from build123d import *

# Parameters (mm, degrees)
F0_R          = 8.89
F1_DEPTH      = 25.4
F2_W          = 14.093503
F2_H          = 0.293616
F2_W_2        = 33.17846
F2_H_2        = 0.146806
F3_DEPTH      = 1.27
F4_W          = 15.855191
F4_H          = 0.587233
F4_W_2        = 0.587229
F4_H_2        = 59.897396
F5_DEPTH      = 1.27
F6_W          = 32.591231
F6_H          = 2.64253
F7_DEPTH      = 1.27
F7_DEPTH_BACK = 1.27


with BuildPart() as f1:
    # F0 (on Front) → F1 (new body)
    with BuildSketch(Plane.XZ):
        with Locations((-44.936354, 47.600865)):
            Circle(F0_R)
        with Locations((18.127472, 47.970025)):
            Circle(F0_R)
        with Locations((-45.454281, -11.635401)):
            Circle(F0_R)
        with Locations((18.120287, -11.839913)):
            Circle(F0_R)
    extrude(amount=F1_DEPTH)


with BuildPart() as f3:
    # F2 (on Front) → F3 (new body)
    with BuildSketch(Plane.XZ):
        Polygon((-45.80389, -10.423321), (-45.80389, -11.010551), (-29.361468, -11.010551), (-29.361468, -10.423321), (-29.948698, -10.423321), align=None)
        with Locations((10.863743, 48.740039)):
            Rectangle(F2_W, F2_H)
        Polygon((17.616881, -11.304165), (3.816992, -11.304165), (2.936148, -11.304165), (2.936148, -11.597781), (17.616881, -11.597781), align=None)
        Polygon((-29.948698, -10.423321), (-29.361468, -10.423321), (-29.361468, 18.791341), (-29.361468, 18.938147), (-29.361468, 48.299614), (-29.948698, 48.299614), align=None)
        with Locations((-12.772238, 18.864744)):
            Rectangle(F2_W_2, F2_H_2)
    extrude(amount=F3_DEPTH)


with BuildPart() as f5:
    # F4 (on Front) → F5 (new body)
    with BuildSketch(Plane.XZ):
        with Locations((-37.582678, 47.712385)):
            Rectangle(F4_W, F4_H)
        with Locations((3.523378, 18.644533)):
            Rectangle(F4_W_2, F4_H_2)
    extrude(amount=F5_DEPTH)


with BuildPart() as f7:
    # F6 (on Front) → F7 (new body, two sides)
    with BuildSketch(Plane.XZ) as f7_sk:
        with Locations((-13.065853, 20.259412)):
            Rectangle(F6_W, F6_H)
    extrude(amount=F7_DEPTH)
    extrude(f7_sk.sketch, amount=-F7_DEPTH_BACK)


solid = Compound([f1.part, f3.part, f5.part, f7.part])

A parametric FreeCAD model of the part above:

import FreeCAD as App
import Part
import Sketcher
from FreeCAD import Vector
Q = App.Units.Quantity

doc = App.newDocument("Part")
body = doc.addObject("PartDesign::Body", "Body")
body.AllowCompound = True

sketch1 = body.newObject("Sketcher::SketchObject", "Sketch")
sketch1.AttachmentSupport = (doc.getObject("XZ_Plane"), [""])
sketch1.MapMode = "FlatFace"
sketch1.addGeometry(Part.Circle(Vector(-45, 48, 0), Vector(0, 0, 1), 9), False)
sketch1.addGeometry(Part.Circle(Vector(18, 48, 0), Vector(0, 0, 1), 9), False)
sketch1.addGeometry(Part.Circle(Vector(-45, -12, 0), Vector(0, 0, 1), 9), False)
sketch1.addGeometry(Part.Circle(Vector(18, -12, 0), Vector(0, 0, 1), 9), False)
sketch1.addConstraint(Sketcher.Constraint("Equal", 0, 1))
sketch1.addConstraint(Sketcher.Constraint("Equal", 1, 2))
sketch1.addConstraint(Sketcher.Constraint("Equal", 2, 3))
sketch1.addConstraint(Sketcher.Constraint("Diameter", 0, Q("0.7 in")))
sketch1.addConstraint(Sketcher.Constraint("DistanceY", 2, 3, -1, 1, Q("11.635401 mm")))
sketch1.addConstraint(Sketcher.Constraint("DistanceX", 2, 3, -1, 1, Q("45.454281 mm")))
sketch1.addConstraint(Sketcher.Constraint("DistanceY", 0, 3, 1, 3, Q("0.36916 mm")))
sketch1.addConstraint(Sketcher.Constraint("DistanceY", 3, 3, 1, 3, Q("59.809938 mm")))
sketch1.addConstraint(Sketcher.Constraint("DistanceY", 3, 3, 2, 3, Q("0.204512 mm")))
sketch1.addConstraint(Sketcher.Constraint("DistanceX", 0, 3, 3, 3, Q("63.056641 mm")))
sketch1.addConstraint(Sketcher.Constraint("DistanceX", 0, 3, -1, 1, Q("44.936354 mm")))
sketch1.addConstraint(Sketcher.Constraint("DistanceX", -1, 1, 1, 3, Q("18.127472 mm")))
pad1 = body.newObject("PartDesign::Pad", "Pad")
pad1.Profile = sketch1
pad1.Length = Q("1 in")
body2 = doc.addObject("PartDesign::Body", "Body001")
body2.AllowCompound = True

sketch2 = body2.newObject("Sketcher::SketchObject", "Sketch001")
sketch2.AttachmentSupport = (doc.getObject("XZ_Plane001"), [""])
sketch2.MapMode = "FlatFace"
sketch2.addGeometry(Part.LineSegment(Vector(-45.8, -10.42, 0), Vector(-45.8, -11.01, 0)), False)
sketch2.addGeometry(Part.LineSegment(Vector(-45.8, -11.01, 0), Vector(-29.36, -11.01, 0)), False)
sketch2.addGeometry(Part.LineSegment(Vector(-29.36, -11.01, 0), Vector(-29.36, 18.79, 0)), False)
sketch2.addGeometry(Part.LineSegment(Vector(-29.36, 18.79, 0), Vector(3.82, 18.79, 0)), False)
sketch2.addGeometry(Part.LineSegment(Vector(3.82, 18.79, 0), Vector(3.82, 18.94, 0)), False)
sketch2.addGeometry(Part.LineSegment(Vector(3.82, 18.94, 0), Vector(-29.36, 18.94, 0)), False)
sketch2.addGeometry(Part.LineSegment(Vector(-29.36, 18.94, 0), Vector(-29.36, 48.3, 0)), False)
sketch2.addGeometry(Part.LineSegment(Vector(-29.36, 48.3, 0), Vector(-29.95, 48.3, 0)), False)
sketch2.addGeometry(Part.LineSegment(Vector(-29.95, 48.3, 0), Vector(-29.95, -10.42, 0)), False)
sketch2.addGeometry(Part.LineSegment(Vector(-29.95, -10.42, 0), Vector(-45.8, -10.42, 0)), False)
sketch2.addGeometry(Part.LineSegment(Vector(3.82, 48.89, 0), Vector(3.82, 48.59, 0)), False)
sketch2.addGeometry(Part.LineSegment(Vector(3.82, 48.59, 0), Vector(17.91, 48.59, 0)), False)
sketch2.addGeometry(Part.LineSegment(Vector(17.91, 48.59, 0), Vector(17.91, 48.89, 0)), False)
sketch2.addGeometry(Part.LineSegment(Vector(17.91, 48.89, 0), Vector(3.82, 48.89, 0)), False)
sketch2.addGeometry(Part.LineSegment(Vector(17.62, -11.3, 0), Vector(2.94, -11.3, 0)), False)
sketch2.addGeometry(Part.LineSegment(Vector(2.94, -11.3, 0), Vector(2.94, -11.6, 0)), False)
sketch2.addGeometry(Part.LineSegment(Vector(2.94, -11.6, 0), Vector(17.62, -11.6, 0)), False)
sketch2.addGeometry(Part.LineSegment(Vector(17.62, -11.6, 0), Vector(17.62, -11.3, 0)), False)
sketch2.addConstraint(Sketcher.Constraint("Coincident", 0, 2, 1, 1))
sketch2.addConstraint(Sketcher.Constraint("Coincident", 1, 2, 2, 1))
sketch2.addConstraint(Sketcher.Constraint("Coincident", 2, 2, 3, 1))
sketch2.addConstraint(Sketcher.Constraint("Coincident", 3, 2, 4, 1))
sketch2.addConstraint(Sketcher.Constraint("Coincident", 4, 2, 5, 1))
sketch2.addConstraint(Sketcher.Constraint("Coincident", 5, 2, 6, 1))
sketch2.addConstraint(Sketcher.Constraint("Coincident", 6, 2, 7, 1))
sketch2.addConstraint(Sketcher.Constraint("Coincident", 7, 2, 8, 1))
sketch2.addConstraint(Sketcher.Constraint("Coincident", 8, 2, 9, 1))
sketch2.addConstraint(Sketcher.Constraint("Coincident", 9, 2, 0, 1))
sketch2.addConstraint(Sketcher.Constraint("Coincident", 10, 2, 11, 1))
sketch2.addConstraint(Sketcher.Constraint("Coincident", 11, 2, 12, 1))
sketch2.addConstraint(Sketcher.Constraint("Coincident", 12, 2, 13, 1))
sketch2.addConstraint(Sketcher.Constraint("Coincident", 13, 2, 10, 1))
sketch2.addConstraint(Sketcher.Constraint("Coincident", 14, 2, 15, 1))
sketch2.addConstraint(Sketcher.Constraint("Coincident", 15, 2, 16, 1))
sketch2.addConstraint(Sketcher.Constraint("Coincident", 16, 2, 17, 1))
sketch2.addConstraint(Sketcher.Constraint("Coincident", 17, 2, 14, 1))
sketch2.addConstraint(Sketcher.Constraint("Vertical", 0))
sketch2.addConstraint(Sketcher.Constraint("Horizontal", 1))
sketch2.addConstraint(Sketcher.Constraint("Vertical", 2))
sketch2.addConstraint(Sketcher.Constraint("Horizontal", 3))
sketch2.addConstraint(Sketcher.Constraint("Vertical", 4))
sketch2.addConstraint(Sketcher.Constraint("Horizontal", 5))
sketch2.addConstraint(Sketcher.Constraint("Vertical", 6))
sketch2.addConstraint(Sketcher.Constraint("Horizontal", 7))
sketch2.addConstraint(Sketcher.Constraint("Vertical", 8))
sketch2.addConstraint(Sketcher.Constraint("Horizontal", 9))
sketch2.addConstraint(Sketcher.Constraint("Vertical", 10))
sketch2.addConstraint(Sketcher.Constraint("Horizontal", 11))
sketch2.addConstraint(Sketcher.Constraint("Vertical", 12))
sketch2.addConstraint(Sketcher.Constraint("Horizontal", 13))
sketch2.addConstraint(Sketcher.Constraint("Horizontal", 14))
sketch2.addConstraint(Sketcher.Constraint("Vertical", 15))
sketch2.addConstraint(Sketcher.Constraint("Horizontal", 16))
sketch2.addConstraint(Sketcher.Constraint("Vertical", 17))
sketch2.addConstraint(Sketcher.Constraint("Vertical", 2, 2, 5, 2))
sketch2.addConstraint(Sketcher.Constraint("Vertical", 4, 2, 10, 2))
sketch2.addConstraint(Sketcher.Constraint("Equal", 7, 0))
sketch2.addConstraint(Sketcher.Constraint("Equal", 12, 15))
sketch2.addConstraint(Sketcher.Constraint("DistanceX", 3, 1, 3, 2, Q("33.17846 mm")))
sketch2.addConstraint(Sketcher.Constraint("DistanceX", 7, 2, 7, 1, Q("0.58723 mm")))
sketch2.addConstraint(Sketcher.Constraint("DistanceY", 2, 1, 2, 2, Q("29.801892 mm")))
sketch2.addConstraint(Sketcher.Constraint("DistanceX", 7, 2, -1, 1, Q("29.948698 mm")))
sketch2.addConstraint(Sketcher.Constraint("DistanceY", 1, 2, 4, 2, Q("29.948698 mm")))
sketch2.addConstraint(Sketcher.Constraint("DistanceY", 4, 2, 12, 2, Q("29.9487 mm")))
sketch2.addConstraint(Sketcher.Constraint("DistanceX", 1, 1, 1, 2, Q("16.442422 mm")))
sketch2.addConstraint(Sketcher.Constraint("DistanceX", 11, 1, 11, 2, Q("14.093503 mm")))
sketch2.addConstraint(Sketcher.Constraint("DistanceX", 14, 2, 14, 1, Q("14.680733 mm")))
sketch2.addConstraint(Sketcher.Constraint("DistanceY", 6, 1, 6, 2, Q("29.361467 mm")))
sketch2.addConstraint(Sketcher.Constraint("DistanceY", 10, 2, 10, 1, Q("0.293616 mm")))
sketch2.addConstraint(Sketcher.Constraint("DistanceY", 0, 2, -1, 1, Q("11.010551 mm")))
sketch2.addConstraint(Sketcher.Constraint("DistanceX", -1, 1, 14, 2, Q("2.936148 mm")))
sketch2.addConstraint(Sketcher.Constraint("DistanceY", 15, 2, -1, 1, Q("11.597781 mm")))
pad2 = body2.newObject("PartDesign::Pad", "Pad001")
pad2.Profile = sketch2
pad2.Length = Q("0.05 in")
body3 = doc.addObject("PartDesign::Body", "Body002")
body3.AllowCompound = True

sketch3 = body3.newObject("Sketcher::SketchObject", "Sketch002")
sketch3.AttachmentSupport = (doc.getObject("XZ_Plane002"), [""])
sketch3.MapMode = "FlatFace"
sketch3.addGeometry(Part.LineSegment(Vector(-45.5, 48, 0), Vector(-45.5, 47.4, 0)), False)
sketch3.addGeometry(Part.LineSegment(Vector(-45.5, 47.4, 0), Vector(-29.7, 47.4, 0)), False)
sketch3.addGeometry(Part.LineSegment(Vector(-29.7, 47.4, 0), Vector(-29.7, 48, 0)), False)
sketch3.addGeometry(Part.LineSegment(Vector(-29.7, 48, 0), Vector(-45.5, 48, 0)), False)
sketch3.addGeometry(Part.LineSegment(Vector(3.2, 48.6, 0), Vector(3.2, -11.3, 0)), False)
sketch3.addGeometry(Part.LineSegment(Vector(3.2, -11.3, 0), Vector(3.8, -11.3, 0)), False)
sketch3.addGeometry(Part.LineSegment(Vector(3.8, -11.3, 0), Vector(3.8, 48.6, 0)), False)
sketch3.addGeometry(Part.LineSegment(Vector(3.8, 48.6, 0), Vector(3.2, 48.6, 0)), False)
sketch3.addConstraint(Sketcher.Constraint("Coincident", 0, 2, 1, 1))
sketch3.addConstraint(Sketcher.Constraint("Coincident", 1, 2, 2, 1))
sketch3.addConstraint(Sketcher.Constraint("Coincident", 2, 2, 3, 1))
sketch3.addConstraint(Sketcher.Constraint("Coincident", 3, 2, 0, 1))
sketch3.addConstraint(Sketcher.Constraint("Coincident", 4, 2, 5, 1))
sketch3.addConstraint(Sketcher.Constraint("Coincident", 5, 2, 6, 1))
sketch3.addConstraint(Sketcher.Constraint("Coincident", 6, 2, 7, 1))
sketch3.addConstraint(Sketcher.Constraint("Coincident", 7, 2, 4, 1))
sketch3.addConstraint(Sketcher.Constraint("Vertical", 0))
sketch3.addConstraint(Sketcher.Constraint("Horizontal", 1))
sketch3.addConstraint(Sketcher.Constraint("Vertical", 2))
sketch3.addConstraint(Sketcher.Constraint("Horizontal", 3))
sketch3.addConstraint(Sketcher.Constraint("Vertical", 4))
sketch3.addConstraint(Sketcher.Constraint("Horizontal", 5))
sketch3.addConstraint(Sketcher.Constraint("Vertical", 6))
sketch3.addConstraint(Sketcher.Constraint("Horizontal", 7))
sketch3.addConstraint(Sketcher.Constraint("DistanceY", -1, 1, 2, 2, Q("1.8900001 in")))
sketch3.addConstraint(Sketcher.Constraint("DistanceX", 1, 1, 1, 2, Q("15.855191 mm")))
sketch3.addConstraint(Sketcher.Constraint("DistanceX", 5, 1, 5, 2, Q("0.587229 mm")))
sketch3.addConstraint(Sketcher.Constraint("DistanceY", 0, 2, 0, 1, Q("0.587233 mm")))
sketch3.addConstraint(Sketcher.Constraint("DistanceY", 4, 2, 4, 1, Q("59.897396 mm")))
sketch3.addConstraint(Sketcher.Constraint("DistanceY", -1, 1, 6, 2, Q("48.593231 mm")))
sketch3.addConstraint(Sketcher.Constraint("DistanceX", 0, 2, -1, 1, Q("45.510273 mm")))
sketch3.addConstraint(Sketcher.Constraint("DistanceX", -1, 1, 4, 2, Q("3.229763 mm")))
pad3 = body3.newObject("PartDesign::Pad", "Pad002")
pad3.Profile = sketch3
pad3.Length = Q("0.05 in")
body4 = doc.addObject("PartDesign::Body", "Body003")

sketch4 = body4.newObject("Sketcher::SketchObject", "Sketch003")
sketch4.AttachmentSupport = (doc.getObject("XZ_Plane003"), [""])
sketch4.MapMode = "FlatFace"
sketch4.addGeometry(Part.LineSegment(Vector(-29.4, 21.6, 0), Vector(-29.4, 18.9, 0)), False)
sketch4.addGeometry(Part.LineSegment(Vector(-29.4, 18.9, 0), Vector(3.2, 18.9, 0)), False)
sketch4.addGeometry(Part.LineSegment(Vector(3.2, 18.9, 0), Vector(3.2, 21.6, 0)), False)
sketch4.addGeometry(Part.LineSegment(Vector(3.2, 21.6, 0), Vector(-29.4, 21.6, 0)), False)
sketch4.addConstraint(Sketcher.Constraint("Coincident", 0, 2, 1, 1))
sketch4.addConstraint(Sketcher.Constraint("Coincident", 1, 2, 2, 1))
sketch4.addConstraint(Sketcher.Constraint("Coincident", 2, 2, 3, 1))
sketch4.addConstraint(Sketcher.Constraint("Coincident", 3, 2, 0, 1))
sketch4.addConstraint(Sketcher.Constraint("Vertical", 0))
sketch4.addConstraint(Sketcher.Constraint("Horizontal", 1))
sketch4.addConstraint(Sketcher.Constraint("Vertical", 2))
sketch4.addConstraint(Sketcher.Constraint("Horizontal", 3))
sketch4.addConstraint(Sketcher.Constraint("DistanceX", 1, 1, 1, 2, Q("32.591231 mm")))
sketch4.addConstraint(Sketcher.Constraint("DistanceY", 0, 2, 0, 1, Q("2.64253 mm")))
sketch4.addConstraint(Sketcher.Constraint("DistanceX", 0, 2, -1, 1, Q("29.361469 mm")))
sketch4.addConstraint(Sketcher.Constraint("DistanceY", -1, 1, 0, 2, Q("18.938147 mm")))
pad4 = body4.newObject("PartDesign::Pad", "Pad003")
pad4.Profile = sketch4
pad4.Type = "TwoLengths"
pad4.Length = Q("0.05 in")
pad4.Length2 = Q("0.05 in")

doc.recompute()
